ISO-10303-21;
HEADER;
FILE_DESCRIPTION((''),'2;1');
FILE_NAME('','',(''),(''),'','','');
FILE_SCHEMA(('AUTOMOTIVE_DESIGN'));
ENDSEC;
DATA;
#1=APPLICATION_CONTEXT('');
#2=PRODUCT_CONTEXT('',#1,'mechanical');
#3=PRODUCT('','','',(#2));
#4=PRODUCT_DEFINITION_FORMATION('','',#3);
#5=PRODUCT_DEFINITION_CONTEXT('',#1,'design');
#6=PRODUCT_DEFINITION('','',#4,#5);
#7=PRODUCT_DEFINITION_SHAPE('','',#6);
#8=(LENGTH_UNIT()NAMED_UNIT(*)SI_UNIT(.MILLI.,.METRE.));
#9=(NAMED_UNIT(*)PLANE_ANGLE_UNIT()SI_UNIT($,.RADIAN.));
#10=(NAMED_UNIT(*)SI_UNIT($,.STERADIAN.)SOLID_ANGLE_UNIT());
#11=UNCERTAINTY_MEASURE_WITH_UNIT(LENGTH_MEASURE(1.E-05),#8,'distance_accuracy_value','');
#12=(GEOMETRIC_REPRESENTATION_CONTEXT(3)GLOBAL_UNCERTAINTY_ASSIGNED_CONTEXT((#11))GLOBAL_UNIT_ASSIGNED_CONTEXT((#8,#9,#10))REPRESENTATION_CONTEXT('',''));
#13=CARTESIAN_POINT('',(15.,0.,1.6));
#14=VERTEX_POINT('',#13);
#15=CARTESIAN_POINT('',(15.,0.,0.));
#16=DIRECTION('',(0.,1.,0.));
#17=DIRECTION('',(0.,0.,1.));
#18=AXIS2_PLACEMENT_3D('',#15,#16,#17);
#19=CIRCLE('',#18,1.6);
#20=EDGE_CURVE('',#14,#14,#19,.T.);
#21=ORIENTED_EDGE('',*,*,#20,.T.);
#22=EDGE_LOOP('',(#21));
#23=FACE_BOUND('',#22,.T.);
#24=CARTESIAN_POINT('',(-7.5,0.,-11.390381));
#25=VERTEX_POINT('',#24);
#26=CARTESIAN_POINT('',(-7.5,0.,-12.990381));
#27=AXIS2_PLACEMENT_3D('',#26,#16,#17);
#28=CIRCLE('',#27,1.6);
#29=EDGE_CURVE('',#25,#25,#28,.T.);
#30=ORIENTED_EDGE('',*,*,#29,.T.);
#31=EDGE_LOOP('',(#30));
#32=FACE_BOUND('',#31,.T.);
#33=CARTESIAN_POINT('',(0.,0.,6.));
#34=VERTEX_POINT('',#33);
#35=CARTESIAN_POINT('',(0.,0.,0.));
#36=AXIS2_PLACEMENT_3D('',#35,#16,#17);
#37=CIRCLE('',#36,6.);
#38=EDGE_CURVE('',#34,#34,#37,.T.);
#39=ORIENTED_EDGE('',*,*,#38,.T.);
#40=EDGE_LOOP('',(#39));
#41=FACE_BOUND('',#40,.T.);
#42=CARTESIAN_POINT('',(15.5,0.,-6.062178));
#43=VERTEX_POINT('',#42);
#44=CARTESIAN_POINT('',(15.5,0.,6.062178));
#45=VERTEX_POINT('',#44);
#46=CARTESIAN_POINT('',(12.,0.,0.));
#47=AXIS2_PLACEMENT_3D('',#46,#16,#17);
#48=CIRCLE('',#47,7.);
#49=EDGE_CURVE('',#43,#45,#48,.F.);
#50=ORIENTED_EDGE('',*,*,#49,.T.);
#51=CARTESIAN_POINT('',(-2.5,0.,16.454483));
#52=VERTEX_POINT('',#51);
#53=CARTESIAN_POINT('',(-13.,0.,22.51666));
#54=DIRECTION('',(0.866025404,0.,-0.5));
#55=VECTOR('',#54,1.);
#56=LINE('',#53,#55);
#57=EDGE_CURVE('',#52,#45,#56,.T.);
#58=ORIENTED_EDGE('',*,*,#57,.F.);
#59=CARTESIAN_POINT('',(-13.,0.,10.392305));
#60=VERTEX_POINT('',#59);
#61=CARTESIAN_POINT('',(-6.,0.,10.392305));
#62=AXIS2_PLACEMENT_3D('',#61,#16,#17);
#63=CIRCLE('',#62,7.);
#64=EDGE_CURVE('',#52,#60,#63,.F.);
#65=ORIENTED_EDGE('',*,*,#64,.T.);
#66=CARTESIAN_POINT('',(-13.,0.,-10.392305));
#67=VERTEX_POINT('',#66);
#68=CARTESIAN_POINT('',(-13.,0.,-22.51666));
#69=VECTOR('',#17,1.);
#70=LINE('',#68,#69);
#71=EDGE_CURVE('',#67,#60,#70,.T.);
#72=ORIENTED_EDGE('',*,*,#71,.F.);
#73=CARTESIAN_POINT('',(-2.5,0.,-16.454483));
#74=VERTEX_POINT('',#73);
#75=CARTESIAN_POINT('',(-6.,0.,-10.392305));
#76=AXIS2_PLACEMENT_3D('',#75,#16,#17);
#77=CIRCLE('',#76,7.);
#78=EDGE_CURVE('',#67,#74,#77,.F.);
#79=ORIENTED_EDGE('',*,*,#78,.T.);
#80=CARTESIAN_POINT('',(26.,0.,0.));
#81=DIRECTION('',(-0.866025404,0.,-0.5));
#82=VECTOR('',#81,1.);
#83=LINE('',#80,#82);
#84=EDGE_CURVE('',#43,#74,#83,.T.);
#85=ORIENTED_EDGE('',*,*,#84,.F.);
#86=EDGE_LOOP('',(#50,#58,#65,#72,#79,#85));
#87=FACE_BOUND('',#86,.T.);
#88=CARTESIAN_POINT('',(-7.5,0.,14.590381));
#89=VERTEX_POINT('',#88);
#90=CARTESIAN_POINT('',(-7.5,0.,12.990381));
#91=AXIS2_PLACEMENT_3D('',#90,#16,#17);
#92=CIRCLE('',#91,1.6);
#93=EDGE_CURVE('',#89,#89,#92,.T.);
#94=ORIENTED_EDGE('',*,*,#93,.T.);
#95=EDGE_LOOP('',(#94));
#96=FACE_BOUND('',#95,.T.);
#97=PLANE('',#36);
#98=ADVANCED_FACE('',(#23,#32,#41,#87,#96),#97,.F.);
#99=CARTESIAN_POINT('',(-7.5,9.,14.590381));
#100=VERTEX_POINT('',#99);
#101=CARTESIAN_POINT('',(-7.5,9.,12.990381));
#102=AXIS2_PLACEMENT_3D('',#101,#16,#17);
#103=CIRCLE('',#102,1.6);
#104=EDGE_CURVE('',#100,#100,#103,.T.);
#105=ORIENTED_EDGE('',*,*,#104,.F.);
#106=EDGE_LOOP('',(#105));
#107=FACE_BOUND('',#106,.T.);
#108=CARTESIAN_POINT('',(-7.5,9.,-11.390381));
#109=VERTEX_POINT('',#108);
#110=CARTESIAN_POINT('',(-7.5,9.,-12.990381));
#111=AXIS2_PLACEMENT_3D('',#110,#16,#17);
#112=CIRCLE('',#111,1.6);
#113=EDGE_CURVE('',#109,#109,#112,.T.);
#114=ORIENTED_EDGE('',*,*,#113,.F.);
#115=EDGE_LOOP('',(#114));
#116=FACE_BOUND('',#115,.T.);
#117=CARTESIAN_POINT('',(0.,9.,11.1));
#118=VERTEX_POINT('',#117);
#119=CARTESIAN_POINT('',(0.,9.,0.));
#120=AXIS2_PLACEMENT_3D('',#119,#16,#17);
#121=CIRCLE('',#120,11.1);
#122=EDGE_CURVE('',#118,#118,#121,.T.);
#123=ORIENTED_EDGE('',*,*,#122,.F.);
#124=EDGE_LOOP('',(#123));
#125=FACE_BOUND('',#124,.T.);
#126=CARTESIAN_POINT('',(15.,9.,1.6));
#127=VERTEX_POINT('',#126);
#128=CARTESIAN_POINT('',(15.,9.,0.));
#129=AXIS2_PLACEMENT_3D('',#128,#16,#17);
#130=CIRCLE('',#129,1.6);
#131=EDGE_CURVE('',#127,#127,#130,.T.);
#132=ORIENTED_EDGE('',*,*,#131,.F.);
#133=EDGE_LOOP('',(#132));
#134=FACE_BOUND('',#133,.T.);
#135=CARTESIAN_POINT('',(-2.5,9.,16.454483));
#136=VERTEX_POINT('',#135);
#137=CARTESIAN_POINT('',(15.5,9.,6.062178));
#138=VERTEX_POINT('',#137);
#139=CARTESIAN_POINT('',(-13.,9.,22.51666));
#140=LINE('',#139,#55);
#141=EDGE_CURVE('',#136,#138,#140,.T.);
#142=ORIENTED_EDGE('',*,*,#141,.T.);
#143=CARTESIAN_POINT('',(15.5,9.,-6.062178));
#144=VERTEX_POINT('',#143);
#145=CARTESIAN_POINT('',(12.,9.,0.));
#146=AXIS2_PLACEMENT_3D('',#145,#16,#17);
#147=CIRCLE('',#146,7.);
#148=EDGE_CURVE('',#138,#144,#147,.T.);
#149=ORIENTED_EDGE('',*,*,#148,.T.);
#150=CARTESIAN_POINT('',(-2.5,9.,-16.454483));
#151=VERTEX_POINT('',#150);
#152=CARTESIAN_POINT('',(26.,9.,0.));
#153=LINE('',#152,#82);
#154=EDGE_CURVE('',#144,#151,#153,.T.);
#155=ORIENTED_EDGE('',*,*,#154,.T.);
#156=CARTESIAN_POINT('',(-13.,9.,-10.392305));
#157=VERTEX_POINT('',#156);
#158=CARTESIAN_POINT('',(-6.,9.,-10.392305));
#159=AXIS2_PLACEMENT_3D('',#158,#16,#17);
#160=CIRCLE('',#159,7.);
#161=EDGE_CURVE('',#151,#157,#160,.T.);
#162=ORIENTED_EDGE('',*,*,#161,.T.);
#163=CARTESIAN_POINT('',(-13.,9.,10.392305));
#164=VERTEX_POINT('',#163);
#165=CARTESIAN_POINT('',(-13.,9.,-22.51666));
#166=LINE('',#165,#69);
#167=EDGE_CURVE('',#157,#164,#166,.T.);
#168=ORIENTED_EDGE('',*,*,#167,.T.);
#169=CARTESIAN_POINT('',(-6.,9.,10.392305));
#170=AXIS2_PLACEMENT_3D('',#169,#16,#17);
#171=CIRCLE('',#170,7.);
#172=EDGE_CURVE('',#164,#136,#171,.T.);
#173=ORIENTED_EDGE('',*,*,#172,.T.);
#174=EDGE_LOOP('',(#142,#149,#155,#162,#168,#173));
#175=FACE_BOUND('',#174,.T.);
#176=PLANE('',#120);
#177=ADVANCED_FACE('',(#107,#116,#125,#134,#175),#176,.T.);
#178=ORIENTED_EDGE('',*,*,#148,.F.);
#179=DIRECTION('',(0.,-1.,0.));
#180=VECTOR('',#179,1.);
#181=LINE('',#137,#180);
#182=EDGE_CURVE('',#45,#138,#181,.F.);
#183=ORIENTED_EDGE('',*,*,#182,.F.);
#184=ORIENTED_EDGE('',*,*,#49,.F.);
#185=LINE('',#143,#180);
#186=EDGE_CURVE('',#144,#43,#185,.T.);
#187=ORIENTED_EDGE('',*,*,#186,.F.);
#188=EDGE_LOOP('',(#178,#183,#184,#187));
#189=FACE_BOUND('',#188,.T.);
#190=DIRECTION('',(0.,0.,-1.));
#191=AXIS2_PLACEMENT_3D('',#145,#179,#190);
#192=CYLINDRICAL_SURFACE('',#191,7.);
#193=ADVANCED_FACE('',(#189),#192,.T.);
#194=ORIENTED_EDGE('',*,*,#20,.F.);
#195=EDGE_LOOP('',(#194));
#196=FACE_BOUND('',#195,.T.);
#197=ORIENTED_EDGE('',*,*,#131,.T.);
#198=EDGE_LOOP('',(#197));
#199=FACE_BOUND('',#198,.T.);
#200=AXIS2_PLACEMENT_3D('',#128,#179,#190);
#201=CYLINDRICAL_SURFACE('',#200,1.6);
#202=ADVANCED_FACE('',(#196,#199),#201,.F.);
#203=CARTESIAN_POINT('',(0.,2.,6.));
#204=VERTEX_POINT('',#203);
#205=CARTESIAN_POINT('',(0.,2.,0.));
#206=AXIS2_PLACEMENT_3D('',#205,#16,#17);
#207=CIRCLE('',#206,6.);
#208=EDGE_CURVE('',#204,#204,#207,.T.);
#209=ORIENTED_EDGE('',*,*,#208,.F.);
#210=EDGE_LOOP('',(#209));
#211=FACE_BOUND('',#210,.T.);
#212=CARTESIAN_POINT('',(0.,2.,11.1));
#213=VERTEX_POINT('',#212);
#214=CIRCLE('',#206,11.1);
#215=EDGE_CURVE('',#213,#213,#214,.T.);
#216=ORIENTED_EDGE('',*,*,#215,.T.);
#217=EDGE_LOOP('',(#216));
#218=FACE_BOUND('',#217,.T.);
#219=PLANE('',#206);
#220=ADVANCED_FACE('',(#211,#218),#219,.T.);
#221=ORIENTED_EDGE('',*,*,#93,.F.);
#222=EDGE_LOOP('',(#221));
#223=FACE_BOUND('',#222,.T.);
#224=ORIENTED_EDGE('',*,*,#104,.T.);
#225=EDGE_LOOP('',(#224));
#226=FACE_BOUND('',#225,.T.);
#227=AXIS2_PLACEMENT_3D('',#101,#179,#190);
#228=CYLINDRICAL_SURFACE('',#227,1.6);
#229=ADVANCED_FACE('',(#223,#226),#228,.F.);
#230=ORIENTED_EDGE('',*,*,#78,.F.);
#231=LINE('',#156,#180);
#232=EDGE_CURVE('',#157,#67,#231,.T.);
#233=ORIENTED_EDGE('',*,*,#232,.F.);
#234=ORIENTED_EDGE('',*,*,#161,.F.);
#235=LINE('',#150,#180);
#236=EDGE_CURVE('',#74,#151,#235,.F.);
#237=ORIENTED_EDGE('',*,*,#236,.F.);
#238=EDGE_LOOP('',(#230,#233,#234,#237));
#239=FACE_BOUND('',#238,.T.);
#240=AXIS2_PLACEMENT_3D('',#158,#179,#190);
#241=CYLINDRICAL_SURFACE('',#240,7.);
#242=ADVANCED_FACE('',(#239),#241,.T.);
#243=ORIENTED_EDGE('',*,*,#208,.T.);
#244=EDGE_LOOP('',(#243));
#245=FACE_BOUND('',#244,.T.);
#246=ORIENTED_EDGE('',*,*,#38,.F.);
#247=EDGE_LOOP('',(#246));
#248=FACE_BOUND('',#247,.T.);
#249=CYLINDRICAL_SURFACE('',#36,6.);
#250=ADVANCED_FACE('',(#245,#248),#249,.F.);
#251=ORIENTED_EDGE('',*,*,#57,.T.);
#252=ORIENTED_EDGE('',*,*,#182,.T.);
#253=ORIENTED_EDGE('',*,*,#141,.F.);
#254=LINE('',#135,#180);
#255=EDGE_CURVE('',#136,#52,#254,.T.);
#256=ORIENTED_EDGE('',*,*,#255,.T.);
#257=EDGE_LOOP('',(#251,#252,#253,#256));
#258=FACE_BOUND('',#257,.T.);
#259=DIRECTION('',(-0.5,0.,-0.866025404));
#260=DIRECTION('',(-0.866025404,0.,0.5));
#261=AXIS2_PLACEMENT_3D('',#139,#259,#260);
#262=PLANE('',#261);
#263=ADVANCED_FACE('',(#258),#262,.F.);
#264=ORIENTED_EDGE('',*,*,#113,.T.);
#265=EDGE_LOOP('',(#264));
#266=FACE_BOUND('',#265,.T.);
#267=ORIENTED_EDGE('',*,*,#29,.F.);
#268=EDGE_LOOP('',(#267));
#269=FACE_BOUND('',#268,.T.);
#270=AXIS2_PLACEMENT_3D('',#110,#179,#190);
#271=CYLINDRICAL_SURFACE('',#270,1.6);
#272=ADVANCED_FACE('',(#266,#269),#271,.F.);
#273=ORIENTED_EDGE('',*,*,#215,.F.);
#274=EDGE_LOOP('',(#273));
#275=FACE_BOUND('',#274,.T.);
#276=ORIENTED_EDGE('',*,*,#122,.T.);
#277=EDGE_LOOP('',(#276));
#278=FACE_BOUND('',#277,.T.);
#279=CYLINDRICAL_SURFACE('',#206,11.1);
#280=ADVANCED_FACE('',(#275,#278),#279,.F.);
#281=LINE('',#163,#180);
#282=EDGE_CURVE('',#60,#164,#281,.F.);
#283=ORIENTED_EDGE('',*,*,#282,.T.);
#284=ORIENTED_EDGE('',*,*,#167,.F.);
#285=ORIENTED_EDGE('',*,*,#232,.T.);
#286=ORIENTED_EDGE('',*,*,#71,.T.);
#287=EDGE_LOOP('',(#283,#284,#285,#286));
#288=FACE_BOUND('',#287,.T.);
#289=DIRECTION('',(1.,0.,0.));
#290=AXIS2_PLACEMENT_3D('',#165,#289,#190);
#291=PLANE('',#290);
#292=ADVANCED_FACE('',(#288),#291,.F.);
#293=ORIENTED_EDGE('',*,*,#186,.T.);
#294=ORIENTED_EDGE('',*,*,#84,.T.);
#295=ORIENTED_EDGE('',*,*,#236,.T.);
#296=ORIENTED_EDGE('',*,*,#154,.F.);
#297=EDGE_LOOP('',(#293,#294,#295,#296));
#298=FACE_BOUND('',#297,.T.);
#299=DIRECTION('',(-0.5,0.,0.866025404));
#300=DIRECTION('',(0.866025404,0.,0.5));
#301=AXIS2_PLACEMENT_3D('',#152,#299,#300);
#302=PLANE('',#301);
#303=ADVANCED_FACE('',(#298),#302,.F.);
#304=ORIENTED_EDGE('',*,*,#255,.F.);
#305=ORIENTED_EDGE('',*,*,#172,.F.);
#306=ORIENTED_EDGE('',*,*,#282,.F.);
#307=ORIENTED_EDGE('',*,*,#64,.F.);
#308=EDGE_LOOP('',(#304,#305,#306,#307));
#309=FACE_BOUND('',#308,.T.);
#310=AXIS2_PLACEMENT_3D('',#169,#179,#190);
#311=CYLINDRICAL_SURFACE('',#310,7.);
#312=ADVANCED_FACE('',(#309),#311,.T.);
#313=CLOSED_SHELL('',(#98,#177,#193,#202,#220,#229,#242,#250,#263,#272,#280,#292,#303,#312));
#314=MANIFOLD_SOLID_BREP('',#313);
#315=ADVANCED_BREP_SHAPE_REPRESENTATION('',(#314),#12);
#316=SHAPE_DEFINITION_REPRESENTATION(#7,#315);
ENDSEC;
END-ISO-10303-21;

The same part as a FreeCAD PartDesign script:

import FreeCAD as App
import Part
import Sketcher
Q = App.Units.Quantity


def edges_at(feature, points):
    """Names of the edges that pass closest to the given points."""
    edges = feature.Shape.Edges
    near = lambda p: min(range(len(edges)), key=lambda i: edges[i].distToShape(Part.Vertex(*p))[0])
    return sorted({f"Edge{near(p) + 1}" for p in points})


def add_polygon(sketch, points):
    """Adds a closed chain of lines whose ends are joined by coincident constraints."""
    first, n = sketch.GeometryCount, len(points)
    for a, b in zip(points, points[1:] + points[:1]):
        sketch.addGeometry(Part.LineSegment(App.Vector(*a, 0), App.Vector(*b, 0)), False)
    for i in range(n):
        sketch.addConstraint(Sketcher.Constraint("Coincident", first + i, 2, first + (i + 1) % n, 1))

doc = App.newDocument("Part")
body = doc.addObject("PartDesign::Body", "Body")

# Sketch on XZ plane
sketch1 = doc.addObject("Sketcher::SketchObject", "Sketch")
body.addObject(sketch1)
sketch1.AttachmentSupport = (doc.XZ_Plane, [""])
sketch1.MapMode = "FlatFace"
add_polygon(sketch1, [(26, 0), (-13, -22.51666), (-13, 22.51666)])  # lines 0-2
sketch1.addGeometry(Part.Circle(App.Vector(-7.5, 12.990381, 0), App.Vector(0, 0, 1), 1.6), False)  # 3
sketch1.addGeometry(Part.Circle(App.Vector(-7.5, -12.990381, 0), App.Vector(0, 0, 1), 1.6), False)  # 4
sketch1.addGeometry(Part.Circle(App.Vector(15, 0, 0), App.Vector(0, 0, 1), 1.6), False)  # 5
sketch1.addConstraint([
    Sketcher.Constraint("Vertical", 1),
    Sketcher.Constraint("Equal", 3, 4),
    Sketcher.Constraint("Equal", 4, 5),
    Sketcher.Constraint("Symmetric", 3, 3, 4, 3, -1),
    Sketcher.Constraint("PointOnObject", 5, 3, -1),
    Sketcher.Constraint("PointOnObject", 2, 2, -1),
    Sketcher.Constraint("Equal", 0, 2),
    Sketcher.Constraint("Diameter", 3, 3.2),
    Sketcher.Constraint("Angle", 0, Q("-150 deg")),
    Sketcher.Constraint("DistanceX", -1, 1, 5, 3, 15.0),
    Sketcher.Constraint("DistanceX", 0, 2, -1, 1, 13.0),
    Sketcher.Constraint("DistanceX", -1, 1, 2, 2, 26.0),
    Sketcher.Constraint("DistanceX", 3, 3, -1, 1, 7.5),
    Sketcher.Constraint("DistanceY", -1, 1, 3, 3, 12.990381),
])
pad1 = doc.addObject("PartDesign::Pad", "Pad")
body.addObject(pad1)
pad1.Profile = sketch1
pad1.Length = 9
pad1.Reversed = True

# Sketch on XZ plane
sketch2 = doc.addObject("Sketcher::SketchObject", "Sketch001")
body.addObject(sketch2)
sketch2.AttachmentSupport = (doc.XZ_Plane, [""])
sketch2.MapMode = "FlatFace"
sketch2.AttachmentOffset = App.Placement(App.Vector(0, 0, -9), App.Rotation())
sketch2.addGeometry(Part.Circle(App.Vector(0, 0, 0), App.Vector(0, 0, 1), 11.1), False)
sketch2.addConstraint([
    Sketcher.Constraint("Coincident", 0, 3, -1, 1),
    Sketcher.Constraint("Diameter", 0, 22.2),
])
pocket1 = doc.addObject("PartDesign::Pocket", "Pocket")
body.addObject(pocket1)
pocket1.Profile = sketch2
pocket1.Length = 7
pocket1.Reversed = True
doc.recompute()

fillet = doc.addObject("PartDesign::Fillet", "Fillet")
body.addObject(fillet)
fillet.Base = (pocket1, edges_at(pocket1, [(-13, 4.5, 22.517), (-13, 4.5, -22.517), (26, 4.5, 0)]))
fillet.Radius = 7

# Sketch on XZ plane
sketch3 = doc.addObject("Sketcher::SketchObject", "Sketch002")
body.addObject(sketch3)
sketch3.AttachmentSupport = (doc.XZ_Plane, [""])
sketch3.MapMode = "FlatFace"
sketch3.AttachmentOffset = App.Placement(App.Vector(0, 0, -2), App.Rotation())
sketch3.addGeometry(Part.Circle(App.Vector(0, 0, 0), App.Vector(0, 0, 1), 6), False)
sketch3.addConstraint([
    Sketcher.Constraint("Coincident", 0, 3, -1, 1),
    Sketcher.Constraint("Diameter", 0, 12.0),
])
pocket2 = doc.addObject("PartDesign::Pocket", "Pocket001")
body.addObject(pocket2)
pocket2.Profile = sketch3
pocket2.Type = "ThroughAll"
pocket2.Reversed = True

doc.recompute()
